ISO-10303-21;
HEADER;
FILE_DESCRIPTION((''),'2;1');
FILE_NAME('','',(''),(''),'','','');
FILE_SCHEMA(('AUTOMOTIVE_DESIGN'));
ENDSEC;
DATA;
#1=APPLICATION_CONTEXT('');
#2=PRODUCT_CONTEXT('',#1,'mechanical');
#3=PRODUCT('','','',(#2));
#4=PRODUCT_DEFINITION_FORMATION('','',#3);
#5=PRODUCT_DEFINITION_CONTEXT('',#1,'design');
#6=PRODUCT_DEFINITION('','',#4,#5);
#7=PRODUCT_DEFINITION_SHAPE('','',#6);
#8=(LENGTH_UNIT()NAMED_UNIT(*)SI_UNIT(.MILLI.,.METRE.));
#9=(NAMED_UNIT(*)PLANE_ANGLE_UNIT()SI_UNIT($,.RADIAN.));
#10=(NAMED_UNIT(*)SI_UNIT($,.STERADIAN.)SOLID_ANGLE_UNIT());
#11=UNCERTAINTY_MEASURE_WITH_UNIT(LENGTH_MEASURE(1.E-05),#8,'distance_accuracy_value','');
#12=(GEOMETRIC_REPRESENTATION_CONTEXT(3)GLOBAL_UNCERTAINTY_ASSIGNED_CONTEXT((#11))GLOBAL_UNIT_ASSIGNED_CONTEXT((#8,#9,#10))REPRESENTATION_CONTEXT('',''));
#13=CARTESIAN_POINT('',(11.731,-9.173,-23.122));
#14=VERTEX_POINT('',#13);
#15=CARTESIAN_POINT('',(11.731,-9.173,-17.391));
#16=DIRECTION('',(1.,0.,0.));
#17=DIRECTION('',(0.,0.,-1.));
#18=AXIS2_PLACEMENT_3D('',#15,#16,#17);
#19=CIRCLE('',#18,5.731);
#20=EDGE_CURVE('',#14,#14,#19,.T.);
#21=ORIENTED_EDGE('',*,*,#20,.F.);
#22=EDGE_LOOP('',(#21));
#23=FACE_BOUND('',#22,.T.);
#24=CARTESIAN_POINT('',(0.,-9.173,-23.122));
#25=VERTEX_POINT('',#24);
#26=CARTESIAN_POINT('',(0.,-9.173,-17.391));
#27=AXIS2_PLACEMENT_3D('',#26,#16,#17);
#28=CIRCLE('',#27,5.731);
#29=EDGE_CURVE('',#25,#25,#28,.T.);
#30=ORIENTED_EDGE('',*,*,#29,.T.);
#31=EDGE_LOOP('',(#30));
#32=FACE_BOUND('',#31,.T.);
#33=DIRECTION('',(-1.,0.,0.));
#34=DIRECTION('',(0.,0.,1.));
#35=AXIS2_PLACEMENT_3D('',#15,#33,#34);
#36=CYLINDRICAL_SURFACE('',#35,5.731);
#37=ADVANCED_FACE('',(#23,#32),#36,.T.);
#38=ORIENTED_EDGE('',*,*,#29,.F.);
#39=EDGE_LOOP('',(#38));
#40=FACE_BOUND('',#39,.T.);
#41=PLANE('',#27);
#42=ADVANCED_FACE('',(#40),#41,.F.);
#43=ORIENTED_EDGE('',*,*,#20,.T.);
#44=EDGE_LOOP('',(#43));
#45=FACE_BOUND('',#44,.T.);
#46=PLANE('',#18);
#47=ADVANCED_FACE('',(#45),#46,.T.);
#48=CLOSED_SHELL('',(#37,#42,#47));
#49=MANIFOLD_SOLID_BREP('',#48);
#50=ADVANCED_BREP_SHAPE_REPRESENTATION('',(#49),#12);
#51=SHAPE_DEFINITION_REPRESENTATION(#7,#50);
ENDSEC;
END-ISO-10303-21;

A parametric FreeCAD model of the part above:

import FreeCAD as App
import Part
import Sketcher
from FreeCAD import Vector

doc = App.newDocument("Part")
params = doc.addObject("Spreadsheet::Sheet", "Params")
for row, (alias, value) in enumerate([
    ("pad1_length", "11.731 mm"),
], start=1):
    params.set(f"A{row}", alias)
    params.set(f"B{row}", "=" + value)
    params.setAlias(f"B{row}", alias)

body = doc.addObject("PartDesign::Body", "Body")

# Sketch on YZ plane
sketch1 = body.newObject("Sketcher::SketchObject", "Sketch")
sketch1.AttachmentSupport = (doc.getObject("YZ_Plane"), [""])
sketch1.MapMode = "FlatFace"
sketch1.addGeometry(Part.Circle(Vector(-9, -17, 0), Vector(0, 0, 1), 6), False)
sketch1.addConstraint([
    Sketcher.Constraint("Diameter", 0, 11.462),
    Sketcher.Constraint("DistanceX", 0, 3, -1, 1, 9.173),
    Sketcher.Constraint("DistanceY", 0, 3, -1, 1, 17.391),
])
pad1 = body.newObject("PartDesign::Pad", "Pad")
pad1.Profile = sketch1
pad1.setExpression("Length", "Params.pad1_length")

doc.recompute()
